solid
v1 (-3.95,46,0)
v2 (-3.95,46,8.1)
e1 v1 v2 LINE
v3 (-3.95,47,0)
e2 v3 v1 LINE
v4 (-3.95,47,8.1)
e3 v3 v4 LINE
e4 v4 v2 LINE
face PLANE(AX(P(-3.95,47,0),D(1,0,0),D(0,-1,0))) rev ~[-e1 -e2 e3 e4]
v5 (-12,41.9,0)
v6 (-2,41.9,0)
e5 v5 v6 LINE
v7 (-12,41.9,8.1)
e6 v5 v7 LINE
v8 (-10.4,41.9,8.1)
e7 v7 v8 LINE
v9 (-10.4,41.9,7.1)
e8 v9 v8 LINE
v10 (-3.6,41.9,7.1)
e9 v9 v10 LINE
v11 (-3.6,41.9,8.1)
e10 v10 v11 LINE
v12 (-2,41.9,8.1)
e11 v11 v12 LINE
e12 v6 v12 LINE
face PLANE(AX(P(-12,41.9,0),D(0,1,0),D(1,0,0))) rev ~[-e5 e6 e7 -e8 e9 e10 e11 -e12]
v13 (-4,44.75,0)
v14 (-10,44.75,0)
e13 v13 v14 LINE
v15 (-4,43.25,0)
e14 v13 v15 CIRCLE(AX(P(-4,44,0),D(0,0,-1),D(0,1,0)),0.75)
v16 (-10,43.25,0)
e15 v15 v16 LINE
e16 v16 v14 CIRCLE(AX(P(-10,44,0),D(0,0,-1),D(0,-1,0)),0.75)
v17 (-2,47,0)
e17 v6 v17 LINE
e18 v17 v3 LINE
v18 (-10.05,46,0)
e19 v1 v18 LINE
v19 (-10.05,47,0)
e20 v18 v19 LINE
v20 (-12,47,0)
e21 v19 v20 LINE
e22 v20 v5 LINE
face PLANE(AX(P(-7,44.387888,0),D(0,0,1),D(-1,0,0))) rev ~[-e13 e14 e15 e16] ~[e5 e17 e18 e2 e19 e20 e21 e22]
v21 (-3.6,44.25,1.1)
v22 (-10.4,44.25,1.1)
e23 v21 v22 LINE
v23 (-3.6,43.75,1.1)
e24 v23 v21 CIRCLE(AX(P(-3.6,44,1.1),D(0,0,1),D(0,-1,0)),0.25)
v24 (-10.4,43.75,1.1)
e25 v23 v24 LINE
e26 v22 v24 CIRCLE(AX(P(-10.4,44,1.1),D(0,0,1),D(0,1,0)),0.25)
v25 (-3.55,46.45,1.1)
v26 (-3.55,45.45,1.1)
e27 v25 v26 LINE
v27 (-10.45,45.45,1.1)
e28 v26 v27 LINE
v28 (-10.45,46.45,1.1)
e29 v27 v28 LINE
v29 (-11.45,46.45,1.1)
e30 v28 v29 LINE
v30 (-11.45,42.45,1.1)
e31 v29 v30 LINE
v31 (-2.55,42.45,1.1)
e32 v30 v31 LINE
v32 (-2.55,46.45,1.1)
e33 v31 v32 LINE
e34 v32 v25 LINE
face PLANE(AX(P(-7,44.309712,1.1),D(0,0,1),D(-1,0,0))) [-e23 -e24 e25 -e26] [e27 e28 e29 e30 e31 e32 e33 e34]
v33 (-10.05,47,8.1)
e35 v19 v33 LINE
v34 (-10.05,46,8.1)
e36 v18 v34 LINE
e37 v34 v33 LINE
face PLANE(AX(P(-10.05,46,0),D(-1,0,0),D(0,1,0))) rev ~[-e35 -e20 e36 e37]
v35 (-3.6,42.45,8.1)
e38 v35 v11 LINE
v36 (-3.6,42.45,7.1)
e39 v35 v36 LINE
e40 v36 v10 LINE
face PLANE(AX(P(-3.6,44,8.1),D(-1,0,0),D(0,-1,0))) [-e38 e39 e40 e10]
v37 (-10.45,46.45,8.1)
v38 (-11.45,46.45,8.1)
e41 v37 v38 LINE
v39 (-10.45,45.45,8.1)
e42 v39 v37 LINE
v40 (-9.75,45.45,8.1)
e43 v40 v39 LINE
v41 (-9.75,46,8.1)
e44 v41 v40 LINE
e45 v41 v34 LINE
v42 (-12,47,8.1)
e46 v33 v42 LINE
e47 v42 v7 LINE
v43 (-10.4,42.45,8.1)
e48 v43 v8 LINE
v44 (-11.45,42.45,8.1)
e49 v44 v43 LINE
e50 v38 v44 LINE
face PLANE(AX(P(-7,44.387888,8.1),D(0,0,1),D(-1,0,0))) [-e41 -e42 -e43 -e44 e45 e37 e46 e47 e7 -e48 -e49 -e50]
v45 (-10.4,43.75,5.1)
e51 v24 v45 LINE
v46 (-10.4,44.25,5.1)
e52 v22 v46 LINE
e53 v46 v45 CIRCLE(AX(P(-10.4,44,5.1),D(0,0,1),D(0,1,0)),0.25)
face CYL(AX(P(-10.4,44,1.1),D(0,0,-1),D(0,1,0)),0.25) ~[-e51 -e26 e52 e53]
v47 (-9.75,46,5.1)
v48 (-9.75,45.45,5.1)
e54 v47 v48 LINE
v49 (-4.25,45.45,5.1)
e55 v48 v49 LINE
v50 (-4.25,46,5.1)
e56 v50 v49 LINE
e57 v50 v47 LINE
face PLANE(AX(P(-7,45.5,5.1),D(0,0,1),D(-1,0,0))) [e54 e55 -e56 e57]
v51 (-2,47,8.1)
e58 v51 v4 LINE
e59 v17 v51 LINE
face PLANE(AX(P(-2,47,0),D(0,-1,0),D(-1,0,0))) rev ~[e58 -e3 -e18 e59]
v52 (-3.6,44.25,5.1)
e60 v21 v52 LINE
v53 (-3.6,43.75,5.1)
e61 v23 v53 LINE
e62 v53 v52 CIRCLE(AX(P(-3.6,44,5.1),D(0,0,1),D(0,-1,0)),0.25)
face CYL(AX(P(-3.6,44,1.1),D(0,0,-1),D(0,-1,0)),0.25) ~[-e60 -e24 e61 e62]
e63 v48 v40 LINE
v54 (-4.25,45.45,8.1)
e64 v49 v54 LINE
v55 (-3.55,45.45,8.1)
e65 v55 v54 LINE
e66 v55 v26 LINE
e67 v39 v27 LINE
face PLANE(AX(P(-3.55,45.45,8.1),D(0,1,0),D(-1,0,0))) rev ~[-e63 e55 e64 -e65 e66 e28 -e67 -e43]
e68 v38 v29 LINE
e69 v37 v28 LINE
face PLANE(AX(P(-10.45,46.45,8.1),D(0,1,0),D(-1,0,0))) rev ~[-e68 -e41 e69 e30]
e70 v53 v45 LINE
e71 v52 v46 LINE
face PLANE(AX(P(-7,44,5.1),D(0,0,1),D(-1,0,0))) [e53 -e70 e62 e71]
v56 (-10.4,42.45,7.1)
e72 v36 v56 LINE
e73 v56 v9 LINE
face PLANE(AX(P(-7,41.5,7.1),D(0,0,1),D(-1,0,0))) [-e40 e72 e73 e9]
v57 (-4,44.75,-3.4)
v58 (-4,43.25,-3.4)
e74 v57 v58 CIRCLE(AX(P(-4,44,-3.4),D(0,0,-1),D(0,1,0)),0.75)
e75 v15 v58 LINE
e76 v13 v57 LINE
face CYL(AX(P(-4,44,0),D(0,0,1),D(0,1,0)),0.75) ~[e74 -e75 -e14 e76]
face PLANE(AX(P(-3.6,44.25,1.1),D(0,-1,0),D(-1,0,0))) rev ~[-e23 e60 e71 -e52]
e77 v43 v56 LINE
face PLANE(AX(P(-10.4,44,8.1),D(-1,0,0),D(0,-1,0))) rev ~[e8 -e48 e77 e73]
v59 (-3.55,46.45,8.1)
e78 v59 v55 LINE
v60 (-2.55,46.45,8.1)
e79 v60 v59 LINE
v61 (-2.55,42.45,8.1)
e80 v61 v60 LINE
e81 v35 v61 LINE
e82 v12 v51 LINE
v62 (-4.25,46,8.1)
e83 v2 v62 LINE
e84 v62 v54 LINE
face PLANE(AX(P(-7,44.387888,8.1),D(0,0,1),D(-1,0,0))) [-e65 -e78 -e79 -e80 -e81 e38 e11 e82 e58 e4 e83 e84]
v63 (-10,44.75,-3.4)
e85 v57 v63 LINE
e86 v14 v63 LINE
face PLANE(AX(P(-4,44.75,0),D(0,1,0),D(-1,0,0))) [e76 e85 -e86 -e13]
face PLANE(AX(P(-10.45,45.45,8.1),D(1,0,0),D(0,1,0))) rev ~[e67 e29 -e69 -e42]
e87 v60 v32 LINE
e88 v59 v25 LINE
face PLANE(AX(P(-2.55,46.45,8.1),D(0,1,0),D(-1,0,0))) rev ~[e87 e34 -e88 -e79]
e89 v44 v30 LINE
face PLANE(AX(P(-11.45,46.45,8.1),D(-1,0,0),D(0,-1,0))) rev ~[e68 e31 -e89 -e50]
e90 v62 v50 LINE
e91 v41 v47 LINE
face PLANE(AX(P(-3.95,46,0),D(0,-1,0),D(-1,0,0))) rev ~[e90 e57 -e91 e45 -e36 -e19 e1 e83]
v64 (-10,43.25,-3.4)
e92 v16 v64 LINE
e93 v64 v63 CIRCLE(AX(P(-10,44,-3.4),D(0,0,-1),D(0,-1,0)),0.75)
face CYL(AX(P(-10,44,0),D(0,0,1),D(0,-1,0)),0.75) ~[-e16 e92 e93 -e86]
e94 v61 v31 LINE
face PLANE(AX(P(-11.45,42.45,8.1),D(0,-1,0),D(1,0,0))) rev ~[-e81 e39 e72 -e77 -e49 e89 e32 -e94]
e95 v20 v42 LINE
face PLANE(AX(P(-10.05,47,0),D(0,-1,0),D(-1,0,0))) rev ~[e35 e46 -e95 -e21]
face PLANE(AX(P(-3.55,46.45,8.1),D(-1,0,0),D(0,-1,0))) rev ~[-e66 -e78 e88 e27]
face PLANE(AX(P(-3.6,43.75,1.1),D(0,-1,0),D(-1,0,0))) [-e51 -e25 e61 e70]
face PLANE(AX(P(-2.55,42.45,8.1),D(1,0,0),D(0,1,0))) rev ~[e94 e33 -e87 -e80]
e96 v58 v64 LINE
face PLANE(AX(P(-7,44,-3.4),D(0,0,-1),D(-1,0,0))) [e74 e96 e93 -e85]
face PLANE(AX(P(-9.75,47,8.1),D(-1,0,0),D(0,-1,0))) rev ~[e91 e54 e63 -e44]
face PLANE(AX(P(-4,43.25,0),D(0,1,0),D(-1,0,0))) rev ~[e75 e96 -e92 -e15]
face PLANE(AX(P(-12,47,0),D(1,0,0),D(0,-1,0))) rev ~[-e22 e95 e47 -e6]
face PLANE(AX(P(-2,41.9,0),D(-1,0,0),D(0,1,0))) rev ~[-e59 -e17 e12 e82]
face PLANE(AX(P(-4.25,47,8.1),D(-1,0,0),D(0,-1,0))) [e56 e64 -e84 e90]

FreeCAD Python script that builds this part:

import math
import FreeCAD as App
import Part
import Sketcher
Q = App.Units.Quantity


def add_polygon(sketch, points):
    """Adds a closed chain of lines whose ends are joined by coincident constraints."""
    first, n = sketch.GeometryCount, len(points)
    for a, b in zip(points, points[1:] + points[:1]):
        sketch.addGeometry(Part.LineSegment(App.Vector(*a, 0), App.Vector(*b, 0)), False)
    for i in range(n):
        sketch.addConstraint(Sketcher.Constraint("Coincident", first + i, 2, first + (i + 1) % n, 1))

doc = App.newDocument("Part")
body = doc.addObject("PartDesign::Body", "Body")

# Sketch on XY plane
sketch1 = body.newObject("Sketcher::SketchObject", "Sketch")
sketch1.AttachmentSupport = (doc.getObject("XY_Plane"), [""])
sketch1.MapMode = "FlatFace"
add_polygon(sketch1, [(-5, 0), (-3, 0), (-3, 1), (3, 1), (3, 0), (5, 0), (5, 5.1), (-5, 5.1)])  # lines 0-7
sketch1.addConstraint([
    Sketcher.Constraint("Horizontal", 0),
    Sketcher.Constraint("Vertical", 1),
    Sketcher.Constraint("Horizontal", 2),
    Sketcher.Constraint("Vertical", 3),
    Sketcher.Constraint("Horizontal", 4),
    Sketcher.Constraint("Vertical", 5),
    Sketcher.Constraint("Horizontal", 6),
    Sketcher.Constraint("Vertical", 7),
    Sketcher.Constraint("Symmetric", 0, 2, 3, 2, -1, 1),
    Sketcher.Constraint("Symmetric", 4, 2, 7, 2, -2),
    Sketcher.Constraint("DistanceX", 6, 2, 6, 1, Q("10 mm")),
    Sketcher.Constraint("DistanceY", 1, 1, 1, 2, Q("1 mm")),
    Sketcher.Constraint("DistanceX", 2, 1, 2, 2, Q("6.1 mm")),
    Sketcher.Constraint("DistanceY", 5, 1, 5, 2, Q("5.1 mm")),
])
pad1 = body.newObject("PartDesign::Pad", "Pad")
pad1.Profile = sketch1
pad1.Length = 8.1

# Sketch on XY plane
sketch2 = body.newObject("Sketcher::SketchObject", "Sketch001")
sketch2.AttachmentSupport = (doc.getObject("XY_Plane"), [""])
sketch2.MapMode = "FlatFace"
sketch2.AttachmentOffset = App.Placement(App.Vector(0, 0, 8.1), App.Rotation())
add_polygon(sketch2, [(-4.5, 0.6), (-3.5, 0.6), (-3.5, 1.6), (3.5, 1.6), (3.5, 0.6), (4.5, 0.6), (4.5, 4.5), (-4.5, 4.5)])  # lines 0-7
sketch2.addConstraint([
    Sketcher.Constraint("Horizontal", 0),
    Sketcher.Constraint("Vertical", 1),
    Sketcher.Constraint("Horizontal", 2),
    Sketcher.Constraint("Vertical", 3),
    Sketcher.Constraint("Horizontal", 4),
    Sketcher.Constraint("Vertical", 5),
    Sketcher.Constraint("Horizontal", 6),
    Sketcher.Constraint("Vertical", 7),
    Sketcher.Constraint("Symmetric", 0, 2, 3, 2, -2),
    Sketcher.Constraint("Equal", 0, 4),
    Sketcher.Constraint("Equal", 4, 1),
    Sketcher.Constraint("DistanceX", 0, 1, 0, 2, Q("1 mm")),
    Sketcher.Constraint("DistanceY", 5, 1, 5, 2, Q("4 mm")),
    Sketcher.Constraint("DistanceX", 2, 1, 2, 2, Q("6.9 mm")),
    Sketcher.Constraint("DistanceY", -1, 1, 0, 2, Q("0.55 mm")),
])
pocket1 = body.newObject("PartDesign::Pocket", "Pocket")
pocket1.Profile = sketch2
pocket1.Length = 7

# Sketch on XY plane
sketch3 = body.newObject("Sketcher::SketchObject", "Sketch002")
sketch3.AttachmentSupport = (doc.getObject("XY_Plane"), [""])
sketch3.MapMode = "FlatFace"
sketch3.AttachmentOffset = App.Placement(App.Vector(0, 0, 8.1), App.Rotation())
add_polygon(sketch3, [(-3, 8), (-3, 3), (3, 3), (3, 8)])  # lines 0-3
sketch3.addConstraint([
    Sketcher.Constraint("Vertical", 0),
    Sketcher.Constraint("Horizontal", 1),
    Sketcher.Constraint("Vertical", 2),
    Sketcher.Constraint("Horizontal", 3),
    Sketcher.Constraint("DistanceY", 0, 2, 0, 1, Q("5 mm")),
    Sketcher.Constraint("DistanceX", 1, 1, 1, 2, Q("6.8 mm")),
    Sketcher.Constraint("DistanceY", -1, 1, 0, 2, Q("3 mm")),
    Sketcher.Constraint("DistanceX", 0, 2, -1, 1, Q("3.4 mm")),
])
pocket2 = body.newObject("PartDesign::Pocket", "Pocket001")
pocket2.Profile = sketch3
pocket2.Length = 1

# Sketch on XY plane
sketch4 = body.newObject("Sketcher::SketchObject", "Sketch003")
sketch4.AttachmentSupport = (doc.getObject("XY_Plane"), [""])
sketch4.MapMode = "FlatFace"
sketch4.AttachmentOffset = App.Placement(App.Vector(0, 0, 8.1), App.Rotation())
add_polygon(sketch4, [(-2.8, 3), (-2.8, 0), (2.8, 0), (2.8, 3)])  # lines 0-3
sketch4.addConstraint([
    Sketcher.Constraint("Vertical", 0),
    Sketcher.Constraint("Horizontal", 1),
    Sketcher.Constraint("Vertical", 2),
    Sketcher.Constraint("Horizontal", 3),
    Sketcher.Constraint("Symmetric", 0, 2, 1, 2, -1, 1),
    Sketcher.Constraint("DistanceY", 0, 2, 0, 1, Q("3 mm")),
    Sketcher.Constraint("DistanceX", 1, 1, 1, 2, Q("5.5 mm")),
])
pocket3 = body.newObject("PartDesign::Pocket", "Pocket002")
pocket3.Profile = sketch4
pocket3.Length = 3

# Sketch on XY plane
sketch5 = body.newObject("Sketcher::SketchObject", "Sketch004")
sketch5.AttachmentSupport = (doc.getObject("XY_Plane"), [""])
sketch5.MapMode = "FlatFace"
sketch5.AttachmentOffset = App.Placement(App.Vector(0, 0, 1.1), App.Rotation())
sketch5.addGeometry([
    Part.ArcOfCircle(Part.Circle(App.Vector(-3.4, 3, 0), App.Vector(0, 0, 1), 0.25), math.radians(90), math.radians(270)),
    Part.LineSegment(App.Vector(-3.4, 2.75, 0), App.Vector(3.4, 2.75, 0)),
    Part.ArcOfCircle(Part.Circle(App.Vector(3.4, 3, 0), App.Vector(0, 0, 1), 0.25), math.radians(-90), math.radians(90)),
    Part.LineSegment(App.Vector(3.4, 3.25, 0), App.Vector(-3.4, 3.25, 0)),
], False)
sketch5.addConstraint([
    Sketcher.Constraint("Tangent", 0, 2, 1, 1),
    Sketcher.Constraint("Tangent", 1, 2, 2, 1),
    Sketcher.Constraint("Tangent", 2, 2, 3, 1),
    Sketcher.Constraint("Tangent", 3, 2, 0, 1),
    Sketcher.Constraint("Horizontal", 1),
    Sketcher.Constraint("Horizontal", 3),
    Sketcher.Constraint("Radius", 0, Q("0.25 mm")),
    Sketcher.Constraint("DistanceX", 1, 1, 1, 2, Q("6.8 mm")),
    Sketcher.Constraint("DistanceY", -1, 1, 0, 3, Q("3 mm")),
    Sketcher.Constraint("DistanceX", 0, 3, -1, 1, Q("3.4 mm")),
])
pad2 = body.newObject("PartDesign::Pad", "Pad001")
pad2.Profile = sketch5
pad2.Length = 4

# Sketch on XY plane
sketch6 = body.newObject("Sketcher::SketchObject", "Sketch005")
sketch6.AttachmentSupport = (doc.getObject("XY_Plane"), [""])
sketch6.MapMode = "FlatFace"
sketch6.addGeometry([
    Part.ArcOfCircle(Part.Circle(App.Vector(-3, 3, 0), App.Vector(0, 0, 1), 0.8), math.radians(90), math.radians(270)),
    Part.LineSegment(App.Vector(-3, 3.8, 0), App.Vector(3, 3.8, 0)),
    Part.ArcOfCircle(Part.Circle(App.Vector(3, 3, 0), App.Vector(0, 0, 1), 0.8), math.radians(-90), math.radians(90)),
    Part.LineSegment(App.Vector(3, 2.2, 0), App.Vector(-3, 2.2, 0)),
], False)
sketch6.addConstraint([
    Sketcher.Constraint("Tangent", 0, 1, 1, 1),
    Sketcher.Constraint("Tangent", 1, 2, 2, 2),
    Sketcher.Constraint("Tangent", 2, 1, 3, 1),
    Sketcher.Constraint("Tangent", 3, 2, 0, 2),
    Sketcher.Constraint("Horizontal", 1),
    Sketcher.Constraint("Horizontal", 3),
    Sketcher.Constraint("DistanceX", 1, 1, 1, 2, Q("6 mm")),
    Sketcher.Constraint("Radius", 0, Q("0.75 mm")),
    Sketcher.Constraint("DistanceX", 0, 3, -1, 1, Q("3 mm")),
    Sketcher.Constraint("DistanceY", -1, 1, 0, 3, Q("3 mm")),
])
pad3 = body.newObject("PartDesign::Pad", "Pad002")
pad3.Profile = sketch6
pad3.Length = 3.4
pad3.Reversed = True
body2 = doc.addObject("PartDesign::Body", "Body001")
doc.recompute()

body.Placement = App.Placement(App.Vector(-7, 29, 0), App.Rotation(App.Vector(0, 0, 1), 180))
boolean = body2.newObject("PartDesign::Boolean", "Boolean")
boolean.Type = "Fuse"
boolean.addObjects([body])
body3 = doc.addObject("PartDesign::Body", "Body002")
doc.recompute()

body2.Placement = App.Placement(App.Vector(0, 18, 0), App.Rotation(App.Vector(0, 0, 1), 0))
boolean2 = body3.newObject("PartDesign::Boolean", "Boolean001")
boolean2.Type = "Fuse"
boolean2.addObjects([body2])

doc.recompute()
